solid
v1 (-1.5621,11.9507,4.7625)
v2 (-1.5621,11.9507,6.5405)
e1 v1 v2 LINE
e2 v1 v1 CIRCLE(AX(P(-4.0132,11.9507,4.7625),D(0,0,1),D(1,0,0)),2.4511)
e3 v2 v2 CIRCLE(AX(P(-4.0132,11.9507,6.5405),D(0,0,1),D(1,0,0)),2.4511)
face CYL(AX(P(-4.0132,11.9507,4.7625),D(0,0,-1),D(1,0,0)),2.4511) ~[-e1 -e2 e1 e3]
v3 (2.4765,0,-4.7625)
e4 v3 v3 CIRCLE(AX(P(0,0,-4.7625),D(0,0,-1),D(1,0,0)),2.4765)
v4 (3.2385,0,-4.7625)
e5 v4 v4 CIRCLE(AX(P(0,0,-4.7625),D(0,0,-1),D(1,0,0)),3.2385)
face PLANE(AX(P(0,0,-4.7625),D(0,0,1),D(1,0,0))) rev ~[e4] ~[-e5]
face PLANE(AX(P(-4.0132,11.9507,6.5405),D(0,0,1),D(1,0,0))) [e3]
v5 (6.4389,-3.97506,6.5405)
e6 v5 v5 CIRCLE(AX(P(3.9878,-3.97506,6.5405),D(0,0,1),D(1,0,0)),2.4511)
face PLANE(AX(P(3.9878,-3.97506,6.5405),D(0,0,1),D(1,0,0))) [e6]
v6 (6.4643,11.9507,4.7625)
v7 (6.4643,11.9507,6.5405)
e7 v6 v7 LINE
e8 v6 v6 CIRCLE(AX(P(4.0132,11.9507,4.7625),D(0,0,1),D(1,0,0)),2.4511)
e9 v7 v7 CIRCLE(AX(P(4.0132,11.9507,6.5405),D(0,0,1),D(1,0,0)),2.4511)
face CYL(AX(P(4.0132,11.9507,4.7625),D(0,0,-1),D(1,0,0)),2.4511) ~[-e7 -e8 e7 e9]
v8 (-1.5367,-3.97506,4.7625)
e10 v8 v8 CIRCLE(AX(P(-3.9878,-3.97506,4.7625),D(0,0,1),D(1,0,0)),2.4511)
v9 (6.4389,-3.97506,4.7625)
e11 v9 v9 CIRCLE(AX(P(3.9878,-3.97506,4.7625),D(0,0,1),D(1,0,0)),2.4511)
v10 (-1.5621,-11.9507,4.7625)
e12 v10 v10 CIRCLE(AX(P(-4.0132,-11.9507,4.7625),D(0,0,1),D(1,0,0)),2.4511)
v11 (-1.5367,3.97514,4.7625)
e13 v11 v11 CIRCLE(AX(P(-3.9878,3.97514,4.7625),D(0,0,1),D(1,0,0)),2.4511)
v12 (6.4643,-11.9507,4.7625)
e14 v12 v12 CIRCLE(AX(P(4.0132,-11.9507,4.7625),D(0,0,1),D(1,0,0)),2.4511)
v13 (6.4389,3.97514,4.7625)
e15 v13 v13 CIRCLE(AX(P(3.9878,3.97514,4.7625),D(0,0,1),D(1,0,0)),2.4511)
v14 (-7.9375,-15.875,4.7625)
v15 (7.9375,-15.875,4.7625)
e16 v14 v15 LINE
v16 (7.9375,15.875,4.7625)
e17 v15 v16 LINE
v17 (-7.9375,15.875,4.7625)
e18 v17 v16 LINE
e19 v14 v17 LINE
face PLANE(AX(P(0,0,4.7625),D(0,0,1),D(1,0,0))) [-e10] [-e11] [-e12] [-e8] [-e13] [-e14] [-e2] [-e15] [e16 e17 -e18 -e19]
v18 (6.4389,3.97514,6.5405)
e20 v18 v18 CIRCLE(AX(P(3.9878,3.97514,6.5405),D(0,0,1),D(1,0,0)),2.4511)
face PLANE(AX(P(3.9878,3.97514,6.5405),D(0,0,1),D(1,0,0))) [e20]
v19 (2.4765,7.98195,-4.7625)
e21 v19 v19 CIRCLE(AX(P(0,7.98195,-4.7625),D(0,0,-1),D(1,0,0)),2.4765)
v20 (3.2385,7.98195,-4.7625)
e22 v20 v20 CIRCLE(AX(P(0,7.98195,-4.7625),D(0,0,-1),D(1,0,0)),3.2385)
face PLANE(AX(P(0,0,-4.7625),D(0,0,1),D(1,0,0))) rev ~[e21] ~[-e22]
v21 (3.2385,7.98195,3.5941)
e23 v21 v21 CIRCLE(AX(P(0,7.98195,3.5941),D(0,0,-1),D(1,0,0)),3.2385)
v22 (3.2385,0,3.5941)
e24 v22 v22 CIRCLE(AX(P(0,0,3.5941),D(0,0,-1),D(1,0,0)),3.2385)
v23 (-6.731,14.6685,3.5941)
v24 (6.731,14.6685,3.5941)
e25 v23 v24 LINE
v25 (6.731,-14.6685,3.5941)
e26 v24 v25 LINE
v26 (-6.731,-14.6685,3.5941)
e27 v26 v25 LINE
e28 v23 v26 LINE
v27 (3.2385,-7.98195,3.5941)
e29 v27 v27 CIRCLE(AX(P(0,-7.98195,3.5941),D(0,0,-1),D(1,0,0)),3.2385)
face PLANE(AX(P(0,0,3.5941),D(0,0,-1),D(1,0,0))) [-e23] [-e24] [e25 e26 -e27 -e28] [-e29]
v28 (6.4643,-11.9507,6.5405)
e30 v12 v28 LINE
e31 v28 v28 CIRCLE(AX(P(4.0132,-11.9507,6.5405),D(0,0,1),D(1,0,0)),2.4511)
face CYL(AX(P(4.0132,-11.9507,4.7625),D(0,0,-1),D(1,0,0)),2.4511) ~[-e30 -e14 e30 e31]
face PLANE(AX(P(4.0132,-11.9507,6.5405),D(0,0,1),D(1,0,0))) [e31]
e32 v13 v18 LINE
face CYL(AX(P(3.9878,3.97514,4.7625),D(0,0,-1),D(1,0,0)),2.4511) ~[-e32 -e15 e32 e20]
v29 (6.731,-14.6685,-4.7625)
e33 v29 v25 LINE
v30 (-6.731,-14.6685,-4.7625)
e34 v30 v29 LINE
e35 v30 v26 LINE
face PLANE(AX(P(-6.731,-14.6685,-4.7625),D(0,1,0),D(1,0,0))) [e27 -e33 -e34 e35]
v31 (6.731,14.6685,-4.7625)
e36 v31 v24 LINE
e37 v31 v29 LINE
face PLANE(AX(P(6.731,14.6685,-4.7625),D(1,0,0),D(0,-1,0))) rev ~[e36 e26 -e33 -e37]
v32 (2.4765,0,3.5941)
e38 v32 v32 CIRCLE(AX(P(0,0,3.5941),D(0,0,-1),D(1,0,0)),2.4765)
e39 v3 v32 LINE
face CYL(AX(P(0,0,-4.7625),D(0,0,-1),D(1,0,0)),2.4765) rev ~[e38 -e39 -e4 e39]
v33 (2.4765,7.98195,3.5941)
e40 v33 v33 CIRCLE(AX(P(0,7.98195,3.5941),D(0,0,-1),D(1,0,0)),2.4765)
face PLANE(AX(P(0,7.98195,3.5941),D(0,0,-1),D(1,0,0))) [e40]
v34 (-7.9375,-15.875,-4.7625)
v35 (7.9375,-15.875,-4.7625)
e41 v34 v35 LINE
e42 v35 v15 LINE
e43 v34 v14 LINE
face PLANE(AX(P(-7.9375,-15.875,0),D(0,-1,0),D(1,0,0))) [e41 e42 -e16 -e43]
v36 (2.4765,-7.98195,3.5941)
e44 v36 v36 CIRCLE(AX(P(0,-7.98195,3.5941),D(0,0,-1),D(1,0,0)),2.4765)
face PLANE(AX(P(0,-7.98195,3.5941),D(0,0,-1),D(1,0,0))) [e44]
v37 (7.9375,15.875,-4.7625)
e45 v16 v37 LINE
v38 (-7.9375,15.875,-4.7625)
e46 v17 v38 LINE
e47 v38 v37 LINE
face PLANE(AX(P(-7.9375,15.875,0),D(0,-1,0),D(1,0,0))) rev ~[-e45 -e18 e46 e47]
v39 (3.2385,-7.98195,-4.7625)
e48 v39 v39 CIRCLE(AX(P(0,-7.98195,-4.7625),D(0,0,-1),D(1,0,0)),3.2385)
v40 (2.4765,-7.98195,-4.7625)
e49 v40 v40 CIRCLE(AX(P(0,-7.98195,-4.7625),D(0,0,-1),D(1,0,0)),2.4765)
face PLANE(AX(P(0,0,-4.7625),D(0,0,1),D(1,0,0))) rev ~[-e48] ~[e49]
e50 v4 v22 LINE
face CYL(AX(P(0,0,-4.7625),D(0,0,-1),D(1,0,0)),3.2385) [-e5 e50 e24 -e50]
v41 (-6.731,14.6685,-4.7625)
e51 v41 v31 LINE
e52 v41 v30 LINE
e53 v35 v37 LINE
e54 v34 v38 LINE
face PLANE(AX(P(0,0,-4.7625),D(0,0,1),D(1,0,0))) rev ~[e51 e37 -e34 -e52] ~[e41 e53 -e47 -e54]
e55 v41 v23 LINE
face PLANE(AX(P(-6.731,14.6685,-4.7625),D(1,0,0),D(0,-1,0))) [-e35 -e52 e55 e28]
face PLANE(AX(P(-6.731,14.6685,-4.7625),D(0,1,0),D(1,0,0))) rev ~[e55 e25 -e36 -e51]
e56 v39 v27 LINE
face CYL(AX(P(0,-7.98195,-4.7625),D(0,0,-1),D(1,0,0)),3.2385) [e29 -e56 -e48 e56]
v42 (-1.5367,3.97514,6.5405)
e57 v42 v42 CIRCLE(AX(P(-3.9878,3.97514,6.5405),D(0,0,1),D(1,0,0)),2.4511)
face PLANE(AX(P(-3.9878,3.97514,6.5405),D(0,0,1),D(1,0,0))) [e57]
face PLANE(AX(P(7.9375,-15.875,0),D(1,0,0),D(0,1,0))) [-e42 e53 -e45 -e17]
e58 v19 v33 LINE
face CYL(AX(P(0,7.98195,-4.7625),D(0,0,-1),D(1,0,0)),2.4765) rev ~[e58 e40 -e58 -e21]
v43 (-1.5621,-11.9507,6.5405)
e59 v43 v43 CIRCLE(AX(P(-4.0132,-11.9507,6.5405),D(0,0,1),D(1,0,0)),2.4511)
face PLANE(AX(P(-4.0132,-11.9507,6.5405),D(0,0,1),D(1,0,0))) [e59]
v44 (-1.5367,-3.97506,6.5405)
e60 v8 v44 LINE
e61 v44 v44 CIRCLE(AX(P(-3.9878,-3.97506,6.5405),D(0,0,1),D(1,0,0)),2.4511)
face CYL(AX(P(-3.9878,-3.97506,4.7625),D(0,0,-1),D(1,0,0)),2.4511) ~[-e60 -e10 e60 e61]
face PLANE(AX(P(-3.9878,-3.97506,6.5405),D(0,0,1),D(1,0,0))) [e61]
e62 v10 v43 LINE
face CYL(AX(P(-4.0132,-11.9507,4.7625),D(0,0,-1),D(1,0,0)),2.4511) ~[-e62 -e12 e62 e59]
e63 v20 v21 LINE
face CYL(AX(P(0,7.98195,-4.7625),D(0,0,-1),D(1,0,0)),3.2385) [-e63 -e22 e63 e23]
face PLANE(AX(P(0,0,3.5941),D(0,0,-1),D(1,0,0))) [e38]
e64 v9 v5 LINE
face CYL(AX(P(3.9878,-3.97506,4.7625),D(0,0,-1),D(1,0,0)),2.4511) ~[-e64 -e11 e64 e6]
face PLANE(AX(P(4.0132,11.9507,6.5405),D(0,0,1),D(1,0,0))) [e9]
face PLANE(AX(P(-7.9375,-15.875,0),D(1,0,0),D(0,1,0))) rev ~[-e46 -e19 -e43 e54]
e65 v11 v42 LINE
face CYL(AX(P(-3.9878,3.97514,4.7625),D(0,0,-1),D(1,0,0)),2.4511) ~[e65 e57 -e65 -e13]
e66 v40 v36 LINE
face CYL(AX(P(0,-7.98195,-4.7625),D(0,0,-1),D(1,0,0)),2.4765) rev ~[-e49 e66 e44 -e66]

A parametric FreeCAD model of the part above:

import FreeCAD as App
import Part
import Sketcher

V = App.Vector
Q = App.Units.Quantity

doc = App.newDocument("Part")
body = doc.addObject("PartDesign::Body", "Body")

# Sketch on XY plane
sketch1 = body.newObject("Sketcher::SketchObject", "Sketch")
sketch1.AttachmentSupport = (doc.getObject("XY_Plane"), [""])
sketch1.MapMode = "FlatFace"
sketch1.addGeometry(Part.LineSegment(V(-8, 16, 0), V(-8, -16, 0)), False)
sketch1.addGeometry(Part.LineSegment(V(-8, -16, 0), V(8, -16, 0)), False)
sketch1.addGeometry(Part.LineSegment(V(8, -16, 0), V(8, 16, 0)), False)
sketch1.addGeometry(Part.LineSegment(V(8, 16, 0), V(-8, 16, 0)), False)
sketch1.addConstraint(Sketcher.Constraint("Coincident", 0, 2, 1, 1))
sketch1.addConstraint(Sketcher.Constraint("Coincident", 1, 2, 2, 1))
sketch1.addConstraint(Sketcher.Constraint("Coincident", 2, 2, 3, 1))
sketch1.addConstraint(Sketcher.Constraint("Coincident", 3, 2, 0, 1))
sketch1.addConstraint(Sketcher.Constraint("Vertical", 0))
sketch1.addConstraint(Sketcher.Constraint("Horizontal", 1))
sketch1.addConstraint(Sketcher.Constraint("Vertical", 2))
sketch1.addConstraint(Sketcher.Constraint("Horizontal", 3))
sketch1.addConstraint(Sketcher.Constraint("Symmetric", 0, 2, 2, 2, -1, 1))
sketch1.addConstraint(Sketcher.Constraint("DistanceY", 0, 2, 0, 1, Q("1.25 in")))
sketch1.addConstraint(Sketcher.Constraint("DistanceX", 1, 1, 1, 2, Q("0.625 in")))
pad1 = body.newObject("PartDesign::Pad", "Pad")
pad1.Profile = sketch1
pad1.Length = Q("0.375 in")
pad1.Midplane = True

# Sketch on XY plane
sketch2 = body.newObject("Sketcher::SketchObject", "Sketch001")
sketch2.AttachmentSupport = (doc.getObject("XY_Plane"), [""])
sketch2.MapMode = "FlatFace"
sketch2.AttachmentOffset = App.Placement(V(0, 0, 0.1875 * 25.4), App.Rotation())
sketch2.addGeometry(Part.Circle(V(4, 12, 0), V(0, 0, 1), 2.5), False)
sketch2.addGeometry(Part.Circle(V(4, 4, 0), V(0, 0, 1), 2.5), False)
sketch2.addGeometry(Part.Circle(V(4, -4, 0), V(0, 0, 1), 2.5), False)
sketch2.addGeometry(Part.Circle(V(4, -12, 0), V(0, 0, 1), 2.5), False)
sketch2.addGeometry(Part.Circle(V(-4, -12, 0), V(0, 0, 1), 2.5), False)
sketch2.addGeometry(Part.Circle(V(-4, -4, 0), V(0, 0, 1), 2.5), False)
sketch2.addGeometry(Part.Circle(V(-4, 4, 0), V(0, 0, 1), 2.5), False)
sketch2.addGeometry(Part.Circle(V(-4, 12, 0), V(0, 0, 1), 2.5), False)
sketch2.addConstraint(Sketcher.Constraint("Equal", 0, 1))
sketch2.addConstraint(Sketcher.Constraint("Equal", 1, 2))
sketch2.addConstraint(Sketcher.Constraint("Equal", 2, 3))
sketch2.addConstraint(Sketcher.Constraint("Equal", 3, 4))
sketch2.addConstraint(Sketcher.Constraint("Equal", 4, 5))
sketch2.addConstraint(Sketcher.Constraint("Equal", 5, 6))
sketch2.addConstraint(Sketcher.Constraint("Equal", 6, 7))
sketch2.addConstraint(Sketcher.Constraint("Symmetric", 0, 3, 4, 3, -1, 1))
sketch2.addConstraint(Sketcher.Constraint("Symmetric", 3, 3, 7, 3, -1, 1))
sketch2.addConstraint(Sketcher.Constraint("Symmetric", 3, 3, 4, 3, -2))
sketch2.addConstraint(Sketcher.Constraint("Symmetric", 2, 3, 5, 3, -2))
sketch2.addConstraint(Sketcher.Constraint("Symmetric", 1, 3, 6, 3, -2))
sketch2.addConstraint(Sketcher.Constraint("Vertical", 1, 3, 2, 3))
sketch2.addConstraint(Sketcher.Constraint("Diameter", 0, Q("0.193 in")))
sketch2.addConstraint(Sketcher.Constraint("DistanceX", -1, 1, 0, 3, Q("0.158 in")))
sketch2.addConstraint(Sketcher.Constraint("DistanceX", -1, 1, 1, 3, Q("0.157 in")))
sketch2.addConstraint(Sketcher.Constraint("DistanceY", 2, 3, 1, 3, Q("0.313 in")))
sketch2.addConstraint(Sketcher.Constraint("DistanceY", 3, 3, 0, 3, Q("0.941 in")))
sketch2.addConstraint(Sketcher.Constraint("DistanceY", -1, 1, 1, 3, Q("3.97514 mm")))
pad2 = body.newObject("PartDesign::Pad", "Pad001")
pad2.Profile = sketch2
pad2.Length = Q("0.07 in")

# Sketch on XY plane
sketch3 = body.newObject("Sketcher::SketchObject", "Sketch002")
sketch3.AttachmentSupport = (doc.getObject("XY_Plane"), [""])
sketch3.MapMode = "FlatFace"
sketch3.AttachmentOffset = App.Placement(V(0, 0, -0.1875 * 25.4), App.Rotation())
sketch3.addGeometry(Part.LineSegment(V(-6.7, -14.7, 0), V(-6.7, 14.7, 0)), False)
sketch3.addGeometry(Part.LineSegment(V(-6.7, 14.7, 0), V(6.7, 14.7, 0)), False)
sketch3.addGeometry(Part.LineSegment(V(6.7, 14.7, 0), V(6.7, -14.7, 0)), False)
sketch3.addGeometry(Part.LineSegment(V(6.7, -14.7, 0), V(-6.7, -14.7, 0)), False)
sketch3.addGeometry(Part.Circle(V(0, 8, 0), V(0, 0, 1), 3.2), False)
sketch3.addGeometry(Part.Circle(V(0, 0, 0), V(0, 0, 1), 3.2), False)
sketch3.addGeometry(Part.Circle(V(0, -8, 0), V(0, 0, 1), 3.2), False)
sketch3.addConstraint(Sketcher.Constraint("Coincident", 0, 2, 1, 1))
sketch3.addConstraint(Sketcher.Constraint("Coincident", 1, 2, 2, 1))
sketch3.addConstraint(Sketcher.Constraint("Coincident", 2, 2, 3, 1))
sketch3.addConstraint(Sketcher.Constraint("Coincident", 3, 2, 0, 1))
sketch3.addConstraint(Sketcher.Constraint("Vertical", 0))
sketch3.addConstraint(Sketcher.Constraint("Horizontal", 1))
sketch3.addConstraint(Sketcher.Constraint("Vertical", 2))
sketch3.addConstraint(Sketcher.Constraint("Horizontal", 3))
sketch3.addConstraint(Sketcher.Constraint("Coincident", 5, 3, -1, 1))
sketch3.addConstraint(Sketcher.Constraint("Equal", 4, 5))
sketch3.addConstraint(Sketcher.Constraint("Equal", 5, 6))
sketch3.addConstraint(Sketcher.Constraint("Symmetric", 4, 3, 6, 3, -1, 1))
sketch3.addConstraint(Sketcher.Constraint("Symmetric", 0, 2, 2, 2, -1, 1))
sketch3.addConstraint(Sketcher.Constraint("PointOnObject", 4, 3, -2))
sketch3.addConstraint(Sketcher.Constraint("Diameter", 4, Q("0.255 in")))
sketch3.addConstraint(Sketcher.Constraint("DistanceX", 1, 1, 1, 2, Q("0.53 in")))
sketch3.addConstraint(Sketcher.Constraint("DistanceY", 0, 1, 0, 2, Q("1.155 in")))
sketch3.addConstraint(Sketcher.Constraint("DistanceY", 6, 3, 4, 3, Q("0.6285 in")))
pocket1 = body.newObject("PartDesign::Pocket", "Pocket")
pocket1.Profile = sketch3
pocket1.Length = Q("0.329 in")
pocket1.Reversed = True

# Sketch on XY plane
sketch4 = body.newObject("Sketcher::SketchObject", "Sketch003")
sketch4.AttachmentSupport = (doc.getObject("XY_Plane"), [""])
sketch4.MapMode = "FlatFace"
sketch4.AttachmentOffset = App.Placement(V(0, 0, -0.1875 * 25.4), App.Rotation())
sketch4.addGeometry(Part.Circle(V(0, 0, 0), V(0, 0, 1), 2.5), False)
sketch4.addGeometry(Part.Circle(V(0, -8, 0), V(0, 0, 1), 2.5), False)
sketch4.addGeometry(Part.Circle(V(0, 8, 0), V(0, 0, 1), 2.5), False)
sketch4.addConstraint(Sketcher.Constraint("Coincident", 0, 3, -1, 1))
sketch4.addConstraint(Sketcher.Constraint("Equal", 0, 1))
sketch4.addConstraint(Sketcher.Constraint("Equal", 1, 2))
sketch4.addConstraint(Sketcher.Constraint("Symmetric", 1, 3, 2, 3, -1, 1))
sketch4.addConstraint(Sketcher.Constraint("PointOnObject", 1, 3, -2))
sketch4.addConstraint(Sketcher.Constraint("Diameter", 0, Q("0.195 in")))
sketch4.addConstraint(Sketcher.Constraint("DistanceY", 1, 3, 2, 3, Q("0.6285 in")))
pocket2 = body.newObject("PartDesign::Pocket", "Pocket001")
pocket2.Profile = sketch4
pocket2.Length = Q("0.329 in")
pocket2.Reversed = True

doc.recompute()
